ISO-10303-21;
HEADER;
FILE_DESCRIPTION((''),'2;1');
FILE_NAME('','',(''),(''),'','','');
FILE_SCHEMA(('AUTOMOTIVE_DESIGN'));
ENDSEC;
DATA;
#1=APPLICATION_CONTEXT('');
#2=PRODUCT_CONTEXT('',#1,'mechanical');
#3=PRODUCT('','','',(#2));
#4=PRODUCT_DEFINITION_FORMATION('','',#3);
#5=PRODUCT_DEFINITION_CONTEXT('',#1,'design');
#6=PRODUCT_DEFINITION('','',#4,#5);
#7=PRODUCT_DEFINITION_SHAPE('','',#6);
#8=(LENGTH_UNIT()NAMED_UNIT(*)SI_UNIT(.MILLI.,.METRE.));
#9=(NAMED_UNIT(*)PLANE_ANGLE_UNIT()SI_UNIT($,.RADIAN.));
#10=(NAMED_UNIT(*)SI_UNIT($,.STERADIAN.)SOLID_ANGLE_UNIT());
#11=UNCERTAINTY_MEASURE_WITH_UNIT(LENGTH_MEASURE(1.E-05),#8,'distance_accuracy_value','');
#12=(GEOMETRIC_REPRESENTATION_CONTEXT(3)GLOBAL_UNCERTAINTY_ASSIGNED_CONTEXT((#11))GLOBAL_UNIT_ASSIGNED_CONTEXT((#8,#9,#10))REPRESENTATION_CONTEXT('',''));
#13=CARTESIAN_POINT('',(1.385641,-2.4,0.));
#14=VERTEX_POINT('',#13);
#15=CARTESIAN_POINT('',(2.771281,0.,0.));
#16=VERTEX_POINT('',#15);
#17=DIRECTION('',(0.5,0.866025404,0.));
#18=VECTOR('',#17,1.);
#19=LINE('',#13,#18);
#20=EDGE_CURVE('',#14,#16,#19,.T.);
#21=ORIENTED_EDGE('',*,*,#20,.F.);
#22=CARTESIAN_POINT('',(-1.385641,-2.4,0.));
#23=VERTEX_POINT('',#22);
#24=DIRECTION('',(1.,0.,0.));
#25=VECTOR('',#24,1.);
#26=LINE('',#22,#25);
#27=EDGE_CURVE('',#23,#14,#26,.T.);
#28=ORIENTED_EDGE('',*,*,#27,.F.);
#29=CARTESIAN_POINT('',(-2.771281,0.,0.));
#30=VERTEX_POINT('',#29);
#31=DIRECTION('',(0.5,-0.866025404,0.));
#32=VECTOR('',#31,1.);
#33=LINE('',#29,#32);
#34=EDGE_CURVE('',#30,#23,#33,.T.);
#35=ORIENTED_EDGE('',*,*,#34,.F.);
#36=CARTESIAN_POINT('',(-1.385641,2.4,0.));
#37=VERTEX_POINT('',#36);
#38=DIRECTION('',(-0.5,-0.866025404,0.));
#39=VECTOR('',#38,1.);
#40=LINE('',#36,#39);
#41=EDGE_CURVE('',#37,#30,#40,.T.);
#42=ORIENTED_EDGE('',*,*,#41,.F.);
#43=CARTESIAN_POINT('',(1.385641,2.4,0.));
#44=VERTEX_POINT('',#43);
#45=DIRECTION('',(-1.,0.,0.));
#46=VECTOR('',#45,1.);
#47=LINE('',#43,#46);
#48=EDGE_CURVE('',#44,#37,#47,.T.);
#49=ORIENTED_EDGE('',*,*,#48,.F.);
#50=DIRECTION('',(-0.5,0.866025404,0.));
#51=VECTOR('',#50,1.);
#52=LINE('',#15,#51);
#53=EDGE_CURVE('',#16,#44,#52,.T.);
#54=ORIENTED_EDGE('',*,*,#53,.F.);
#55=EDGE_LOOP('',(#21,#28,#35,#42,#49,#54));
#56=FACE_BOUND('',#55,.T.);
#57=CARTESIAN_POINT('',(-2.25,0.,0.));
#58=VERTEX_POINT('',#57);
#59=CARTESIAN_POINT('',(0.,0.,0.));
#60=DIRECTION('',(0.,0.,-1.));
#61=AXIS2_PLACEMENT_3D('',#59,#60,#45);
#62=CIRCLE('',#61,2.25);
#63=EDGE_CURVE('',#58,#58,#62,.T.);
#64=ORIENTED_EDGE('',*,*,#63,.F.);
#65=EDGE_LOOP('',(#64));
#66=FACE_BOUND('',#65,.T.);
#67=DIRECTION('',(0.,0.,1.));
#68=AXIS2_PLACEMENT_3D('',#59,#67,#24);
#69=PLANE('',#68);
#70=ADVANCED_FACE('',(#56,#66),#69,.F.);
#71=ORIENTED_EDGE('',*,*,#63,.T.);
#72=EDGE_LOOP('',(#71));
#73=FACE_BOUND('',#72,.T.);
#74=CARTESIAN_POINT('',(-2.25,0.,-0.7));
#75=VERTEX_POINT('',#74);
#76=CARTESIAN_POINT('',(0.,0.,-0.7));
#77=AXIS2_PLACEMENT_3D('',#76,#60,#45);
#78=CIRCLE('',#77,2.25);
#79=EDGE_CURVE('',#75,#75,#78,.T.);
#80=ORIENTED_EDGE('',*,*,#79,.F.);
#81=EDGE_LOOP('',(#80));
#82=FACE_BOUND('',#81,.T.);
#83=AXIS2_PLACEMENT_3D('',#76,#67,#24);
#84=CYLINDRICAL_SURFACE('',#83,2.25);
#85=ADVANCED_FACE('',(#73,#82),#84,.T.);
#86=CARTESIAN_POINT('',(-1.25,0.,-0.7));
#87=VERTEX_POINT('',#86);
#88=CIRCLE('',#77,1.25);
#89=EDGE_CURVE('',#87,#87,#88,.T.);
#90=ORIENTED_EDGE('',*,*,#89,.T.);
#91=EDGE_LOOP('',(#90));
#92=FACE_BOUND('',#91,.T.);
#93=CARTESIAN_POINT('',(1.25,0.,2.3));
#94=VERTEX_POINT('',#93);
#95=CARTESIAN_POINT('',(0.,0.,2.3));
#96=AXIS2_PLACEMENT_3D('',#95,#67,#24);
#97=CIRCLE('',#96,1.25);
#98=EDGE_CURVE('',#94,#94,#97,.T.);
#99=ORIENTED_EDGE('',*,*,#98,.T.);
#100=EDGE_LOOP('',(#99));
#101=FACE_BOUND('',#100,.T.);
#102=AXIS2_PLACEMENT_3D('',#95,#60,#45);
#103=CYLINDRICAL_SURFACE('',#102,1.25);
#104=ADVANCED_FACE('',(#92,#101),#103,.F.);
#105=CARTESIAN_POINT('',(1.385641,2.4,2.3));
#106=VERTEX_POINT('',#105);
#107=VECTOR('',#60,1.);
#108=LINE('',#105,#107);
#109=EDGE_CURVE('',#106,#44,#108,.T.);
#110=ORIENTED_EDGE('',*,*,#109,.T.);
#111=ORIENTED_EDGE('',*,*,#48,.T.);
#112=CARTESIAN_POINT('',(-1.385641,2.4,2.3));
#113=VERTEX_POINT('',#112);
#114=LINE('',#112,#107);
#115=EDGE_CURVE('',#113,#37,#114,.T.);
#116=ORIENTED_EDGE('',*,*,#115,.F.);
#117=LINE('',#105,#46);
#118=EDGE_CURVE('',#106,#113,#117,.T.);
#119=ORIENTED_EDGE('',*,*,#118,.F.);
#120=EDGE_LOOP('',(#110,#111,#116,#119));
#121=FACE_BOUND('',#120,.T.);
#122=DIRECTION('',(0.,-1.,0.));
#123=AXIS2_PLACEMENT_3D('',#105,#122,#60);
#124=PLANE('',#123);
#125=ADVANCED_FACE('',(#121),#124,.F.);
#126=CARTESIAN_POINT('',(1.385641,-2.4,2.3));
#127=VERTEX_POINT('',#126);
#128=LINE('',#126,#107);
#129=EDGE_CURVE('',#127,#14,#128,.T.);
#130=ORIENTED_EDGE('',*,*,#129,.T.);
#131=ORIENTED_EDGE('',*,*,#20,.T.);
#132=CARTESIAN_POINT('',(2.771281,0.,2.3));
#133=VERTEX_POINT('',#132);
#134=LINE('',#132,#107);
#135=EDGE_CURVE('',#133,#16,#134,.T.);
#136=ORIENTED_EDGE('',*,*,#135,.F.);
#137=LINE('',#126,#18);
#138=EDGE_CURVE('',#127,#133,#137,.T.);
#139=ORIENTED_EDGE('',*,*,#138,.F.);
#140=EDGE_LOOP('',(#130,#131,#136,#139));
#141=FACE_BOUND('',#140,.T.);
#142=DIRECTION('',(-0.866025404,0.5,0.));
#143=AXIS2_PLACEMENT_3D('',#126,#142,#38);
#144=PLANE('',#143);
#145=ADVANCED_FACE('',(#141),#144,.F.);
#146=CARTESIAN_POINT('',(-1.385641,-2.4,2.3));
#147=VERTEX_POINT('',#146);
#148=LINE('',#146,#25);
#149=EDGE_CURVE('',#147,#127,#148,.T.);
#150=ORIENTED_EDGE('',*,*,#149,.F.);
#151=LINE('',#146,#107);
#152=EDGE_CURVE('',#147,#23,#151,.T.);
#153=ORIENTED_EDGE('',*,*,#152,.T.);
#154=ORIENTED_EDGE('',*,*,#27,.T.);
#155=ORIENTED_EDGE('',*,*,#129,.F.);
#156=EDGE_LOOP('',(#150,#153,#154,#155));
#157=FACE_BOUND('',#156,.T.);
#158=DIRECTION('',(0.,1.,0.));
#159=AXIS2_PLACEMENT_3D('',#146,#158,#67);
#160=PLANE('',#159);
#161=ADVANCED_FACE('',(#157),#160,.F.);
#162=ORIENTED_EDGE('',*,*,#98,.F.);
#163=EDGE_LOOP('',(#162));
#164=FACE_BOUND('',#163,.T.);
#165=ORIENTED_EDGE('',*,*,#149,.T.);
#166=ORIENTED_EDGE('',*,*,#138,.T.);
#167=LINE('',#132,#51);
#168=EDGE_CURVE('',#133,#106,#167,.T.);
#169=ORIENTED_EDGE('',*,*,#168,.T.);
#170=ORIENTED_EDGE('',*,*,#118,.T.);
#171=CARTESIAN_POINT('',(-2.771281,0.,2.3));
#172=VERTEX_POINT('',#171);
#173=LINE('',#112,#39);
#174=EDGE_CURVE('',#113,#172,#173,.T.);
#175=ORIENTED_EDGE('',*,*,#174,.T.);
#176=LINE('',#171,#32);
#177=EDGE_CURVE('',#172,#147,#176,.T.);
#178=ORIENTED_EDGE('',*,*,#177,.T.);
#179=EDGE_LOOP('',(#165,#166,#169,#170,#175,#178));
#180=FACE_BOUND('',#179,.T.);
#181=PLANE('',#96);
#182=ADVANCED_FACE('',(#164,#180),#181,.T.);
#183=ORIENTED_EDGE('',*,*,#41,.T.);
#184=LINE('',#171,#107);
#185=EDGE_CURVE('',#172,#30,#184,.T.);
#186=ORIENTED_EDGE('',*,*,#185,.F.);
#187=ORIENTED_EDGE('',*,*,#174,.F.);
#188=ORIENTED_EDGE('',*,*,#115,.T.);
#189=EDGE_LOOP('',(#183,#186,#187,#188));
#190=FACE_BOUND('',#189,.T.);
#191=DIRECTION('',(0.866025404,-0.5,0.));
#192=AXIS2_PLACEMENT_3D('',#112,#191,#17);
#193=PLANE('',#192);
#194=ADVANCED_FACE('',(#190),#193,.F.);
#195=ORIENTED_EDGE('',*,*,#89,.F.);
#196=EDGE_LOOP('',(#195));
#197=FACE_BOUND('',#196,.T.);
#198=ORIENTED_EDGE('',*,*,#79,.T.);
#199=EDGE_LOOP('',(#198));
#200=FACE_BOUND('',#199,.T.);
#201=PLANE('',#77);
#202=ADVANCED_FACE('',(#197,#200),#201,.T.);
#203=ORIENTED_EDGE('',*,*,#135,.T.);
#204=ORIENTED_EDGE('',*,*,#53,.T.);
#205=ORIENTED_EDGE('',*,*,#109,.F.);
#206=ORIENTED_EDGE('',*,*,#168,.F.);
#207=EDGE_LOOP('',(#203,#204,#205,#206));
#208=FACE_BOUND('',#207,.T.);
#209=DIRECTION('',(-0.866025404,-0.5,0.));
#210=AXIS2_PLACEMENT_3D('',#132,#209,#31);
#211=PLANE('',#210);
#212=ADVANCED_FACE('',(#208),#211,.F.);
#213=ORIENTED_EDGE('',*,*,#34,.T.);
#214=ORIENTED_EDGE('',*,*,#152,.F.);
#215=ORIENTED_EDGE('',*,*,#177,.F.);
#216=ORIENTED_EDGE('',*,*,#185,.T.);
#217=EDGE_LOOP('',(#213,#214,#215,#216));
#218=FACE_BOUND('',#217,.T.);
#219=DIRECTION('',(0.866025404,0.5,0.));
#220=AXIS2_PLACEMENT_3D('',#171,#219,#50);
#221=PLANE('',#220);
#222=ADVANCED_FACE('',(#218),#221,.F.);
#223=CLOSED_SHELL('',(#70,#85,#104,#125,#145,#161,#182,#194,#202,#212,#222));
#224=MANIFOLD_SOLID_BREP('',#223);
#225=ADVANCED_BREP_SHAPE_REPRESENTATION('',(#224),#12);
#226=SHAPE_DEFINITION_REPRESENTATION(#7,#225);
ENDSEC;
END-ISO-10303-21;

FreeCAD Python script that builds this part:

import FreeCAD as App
import Part
import Sketcher

V = App.Vector
Q = App.Units.Quantity

doc = App.newDocument("Part")
body = doc.addObject("PartDesign::Body", "Body")

# Sketch on XY plane
sketch1 = body.newObject("Sketcher::SketchObject", "Sketch")
sketch1.AttachmentSupport = (doc.getObject("XY_Plane"), [""])
sketch1.MapMode = "FlatFace"
sketch1.addGeometry(Part.LineSegment(V(-1.385641, 2.4, 0), V(-2.771281, 0, 0)), False)
sketch1.addGeometry(Part.LineSegment(V(-2.771281, 0, 0), V(-1.385641, -2.4, 0)), False)
sketch1.addGeometry(Part.LineSegment(V(-1.385641, -2.4, 0), V(1.385641, -2.4, 0)), False)
sketch1.addGeometry(Part.LineSegment(V(1.385641, -2.4, 0), V(2.771281, 0, 0)), False)
sketch1.addGeometry(Part.LineSegment(V(2.771281, 0, 0), V(1.385641, 2.4, 0)), False)
sketch1.addGeometry(Part.LineSegment(V(1.385641, 2.4, 0), V(-1.385641, 2.4, 0)), False)
sketch1.addGeometry(Part.Circle(V(0, 0, 0), V(0, 0, 1), 1.25), False)
sketch1.addConstraint(Sketcher.Constraint("Coincident", 0, 2, 1, 1))
sketch1.addConstraint(Sketcher.Constraint("Coincident", 1, 2, 2, 1))
sketch1.addConstraint(Sketcher.Constraint("Coincident", 2, 2, 3, 1))
sketch1.addConstraint(Sketcher.Constraint("Coincident", 3, 2, 4, 1))
sketch1.addConstraint(Sketcher.Constraint("Coincident", 4, 2, 5, 1))
sketch1.addConstraint(Sketcher.Constraint("Coincident", 5, 2, 0, 1))
sketch1.addConstraint(Sketcher.Constraint("Horizontal", 2))
sketch1.addConstraint(Sketcher.Constraint("Horizontal", 5))
sketch1.addConstraint(Sketcher.Constraint("Coincident", 6, 3, -1, 1))
sketch1.addConstraint(Sketcher.Constraint("Symmetric", 0, 2, 3, 2, -1, 1))
sketch1.addConstraint(Sketcher.Constraint("Symmetric", 1, 2, 4, 2, -1, 1))
sketch1.addConstraint(Sketcher.Constraint("PointOnObject", 0, 2, -1))
sketch1.addConstraint(Sketcher.Constraint("Parallel", 0, 3))
sketch1.addConstraint(Sketcher.Constraint("Vertical", 2, 2, 4, 2))
sketch1.addConstraint(Sketcher.Constraint("Diameter", 6, Q("2.5 mm")))
sketch1.addConstraint(Sketcher.Constraint("Angle", 0, Q("-120 deg")))
sketch1.addConstraint(Sketcher.Constraint("DistanceY", 1, 2, -1, 1, Q("2.4 mm")))
sketch1.addConstraint(Sketcher.Constraint("DistanceX", 2, 1, 2, 2, Q("2.771281 mm")))
pad1 = body.newObject("PartDesign::Pad", "Pad")
pad1.Profile = sketch1
pad1.Length = 2.3

# Sketch on XY plane
sketch2 = body.newObject("Sketcher::SketchObject", "Sketch001")
sketch2.AttachmentSupport = (doc.getObject("XY_Plane"), [""])
sketch2.MapMode = "FlatFace"
sketch2.AttachmentOffset = App.Placement(V(0, 0, -0.7), App.Rotation())
sketch2.addGeometry(Part.Circle(V(0, 0, 0), V(0, 0, 1), 2.25), False)
sketch2.addGeometry(Part.Circle(V(0, 0, 0), V(0, 0, 1), 1.25), False)
sketch2.addConstraint(Sketcher.Constraint("Coincident", 0, 3, -1, 1))
sketch2.addConstraint(Sketcher.Constraint("Coincident", 1, 3, -1, 1))
sketch2.addConstraint(Sketcher.Constraint("Diameter", 0, Q("4.5 mm")))
sketch2.addConstraint(Sketcher.Constraint("Diameter", 1, Q("2.5 mm")))
pad2 = body.newObject("PartDesign::Pad", "Pad001")
pad2.Profile = sketch2
pad2.Length = 0.7

doc.recompute()
